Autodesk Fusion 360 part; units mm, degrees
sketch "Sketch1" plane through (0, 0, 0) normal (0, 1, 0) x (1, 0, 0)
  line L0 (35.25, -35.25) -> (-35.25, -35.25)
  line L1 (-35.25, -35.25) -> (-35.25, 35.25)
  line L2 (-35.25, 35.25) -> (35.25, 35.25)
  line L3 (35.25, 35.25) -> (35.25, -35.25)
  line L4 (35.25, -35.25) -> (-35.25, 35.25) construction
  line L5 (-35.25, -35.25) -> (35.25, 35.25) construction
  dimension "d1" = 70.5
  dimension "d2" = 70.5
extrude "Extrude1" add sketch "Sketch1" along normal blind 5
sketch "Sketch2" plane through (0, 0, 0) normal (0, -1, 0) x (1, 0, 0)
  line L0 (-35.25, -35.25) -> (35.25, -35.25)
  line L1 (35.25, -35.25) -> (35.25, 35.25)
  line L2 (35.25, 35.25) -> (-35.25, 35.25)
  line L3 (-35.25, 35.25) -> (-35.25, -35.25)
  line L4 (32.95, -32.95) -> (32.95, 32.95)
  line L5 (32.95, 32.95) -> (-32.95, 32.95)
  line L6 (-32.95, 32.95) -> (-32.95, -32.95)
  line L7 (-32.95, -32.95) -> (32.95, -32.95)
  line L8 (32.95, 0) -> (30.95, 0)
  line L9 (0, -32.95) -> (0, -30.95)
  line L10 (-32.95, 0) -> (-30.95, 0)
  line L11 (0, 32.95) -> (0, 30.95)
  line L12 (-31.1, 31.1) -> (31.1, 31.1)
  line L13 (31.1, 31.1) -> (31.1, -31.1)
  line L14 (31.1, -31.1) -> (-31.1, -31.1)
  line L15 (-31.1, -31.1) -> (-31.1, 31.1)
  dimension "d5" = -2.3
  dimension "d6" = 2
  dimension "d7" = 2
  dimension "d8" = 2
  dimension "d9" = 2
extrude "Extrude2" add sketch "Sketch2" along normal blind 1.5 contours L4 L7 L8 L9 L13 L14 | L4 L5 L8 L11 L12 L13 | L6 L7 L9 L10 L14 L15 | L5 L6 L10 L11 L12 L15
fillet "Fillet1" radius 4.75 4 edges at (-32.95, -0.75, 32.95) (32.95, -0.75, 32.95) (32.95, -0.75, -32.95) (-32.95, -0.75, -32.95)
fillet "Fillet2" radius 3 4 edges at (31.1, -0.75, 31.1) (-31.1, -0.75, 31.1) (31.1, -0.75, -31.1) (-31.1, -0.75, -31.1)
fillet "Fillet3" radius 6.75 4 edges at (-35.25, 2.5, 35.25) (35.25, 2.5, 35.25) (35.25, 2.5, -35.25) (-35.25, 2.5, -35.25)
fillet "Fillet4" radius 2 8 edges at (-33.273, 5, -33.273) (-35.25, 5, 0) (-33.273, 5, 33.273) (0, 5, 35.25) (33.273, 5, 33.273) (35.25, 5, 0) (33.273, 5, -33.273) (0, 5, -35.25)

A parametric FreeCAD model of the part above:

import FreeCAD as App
import Part
import Sketcher

V = App.Vector
Q = App.Units.Quantity


def edges_at(feature, points):
    """Names of the edges that pass closest to the given points."""
    edges = feature.Shape.Edges
    near = lambda p: min(range(len(edges)), key=lambda i: edges[i].distToShape(Part.Vertex(*p))[0])
    return sorted({f"Edge{near(p) + 1}" for p in points})


def add_polygon(sketch, points):
    """Adds a closed chain of lines whose ends are joined by coincident constraints."""
    first, n = sketch.GeometryCount, len(points)
    for a, b in zip(points, points[1:] + points[:1]):
        sketch.addGeometry(Part.LineSegment(App.Vector(*a, 0), App.Vector(*b, 0)), False)
    for i in range(n):
        sketch.addConstraint(Sketcher.Constraint("Coincident", first + i, 2, first + (i + 1) % n, 1))

doc = App.newDocument("Part")
body = doc.addObject("PartDesign::Body", "Body")

# Sketch on XZ plane
sketch1 = doc.addObject("Sketcher::SketchObject", "Sketch")
body.addObject(sketch1)
sketch1.AttachmentSupport = (doc.XZ_Plane, [""])
sketch1.MapMode = "FlatFace"
add_polygon(sketch1, [(-35.25, 35.25), (35.25, 35.25), (35.25, -35.25), (-35.25, -35.25)])  # lines 0-3
sketch1.addConstraint(Sketcher.Constraint("Horizontal", 0))
sketch1.addConstraint(Sketcher.Constraint("Vertical", 1))
sketch1.addConstraint(Sketcher.Constraint("Horizontal", 2))
sketch1.addConstraint(Sketcher.Constraint("Vertical", 3))
sketch1.addConstraint(Sketcher.Constraint("Symmetric", 0, 2, 2, 2, -1, 1))
sketch1.addConstraint(Sketcher.Constraint("Equal", 2, 1))
sketch1.addConstraint(Sketcher.Constraint("DistanceX", 0, 1, 0, 2, Q("70.5 mm")))
pad1 = doc.addObject("PartDesign::Pad", "Pad")
body.addObject(pad1)
pad1.Profile = sketch1
pad1.Length = 5
pad1.Reversed = True

# Sketch on XZ plane
sketch2 = doc.addObject("Sketcher::SketchObject", "Sketch001")
body.addObject(sketch2)
sketch2.AttachmentSupport = (doc.XZ_Plane, [""])
sketch2.MapMode = "FlatFace"
add_polygon(sketch2, [(32.95, -32.95), (32.95, 32.95), (-32.95, 32.95), (-32.95, -32.95)])  # lines 0-3
add_polygon(sketch2, [(31.1, -31.1), (-31.1, -31.1), (-31.1, 31.1), (31.1, 31.1)])  # lines 4-7
sketch2.addConstraint(Sketcher.Constraint("Vertical", 0))
sketch2.addConstraint(Sketcher.Constraint("Horizontal", 1))
sketch2.addConstraint(Sketcher.Constraint("Vertical", 2))
sketch2.addConstraint(Sketcher.Constraint("Horizontal", 3))
sketch2.addConstraint(Sketcher.Constraint("Horizontal", 4))
sketch2.addConstraint(Sketcher.Constraint("Vertical", 5))
sketch2.addConstraint(Sketcher.Constraint("Horizontal", 6))
sketch2.addConstraint(Sketcher.Constraint("Vertical", 7))
sketch2.addConstraint(Sketcher.Constraint("Symmetric", 0, 2, 2, 2, -1, 1))
sketch2.addConstraint(Sketcher.Constraint("Symmetric", 4, 2, 6, 2, -1, 1))
sketch2.addConstraint(Sketcher.Constraint("Equal", 3, 0))
sketch2.addConstraint(Sketcher.Constraint("Equal", 6, 5))
sketch2.addConstraint(Sketcher.Constraint("DistanceX", 1, 2, 1, 1, Q("65.9 mm")))
sketch2.addConstraint(Sketcher.Constraint("DistanceX", 4, 2, 4, 1, Q("62.2 mm")))
pad2 = doc.addObject("PartDesign::Pad", "Pad001")
body.addObject(pad2)
pad2.Profile = sketch2
pad2.Length = 1.5
doc.recompute()

fillet = doc.addObject("PartDesign::Fillet", "Fillet")
body.addObject(fillet)
fillet.Base = (pad2, edges_at(pad2, [
    (-32.95, -0.75, 32.95),
    (32.95, -0.75, 32.95),
    (32.95, -0.75, -32.95),
    (-32.95, -0.75, -32.95),
]))
fillet.Radius = 4.75
doc.recompute()

fillet2 = doc.addObject("PartDesign::Fillet", "Fillet001")
body.addObject(fillet2)
fillet2.Base = (fillet, edges_at(fillet, [
    (31.1, -0.75, 31.1),
    (-31.1, -0.75, 31.1),
    (31.1, -0.75, -31.1),
    (-31.1, -0.75, -31.1),
]))
fillet2.Radius = 3
doc.recompute()

fillet3 = doc.addObject("PartDesign::Fillet", "Fillet002")
body.addObject(fillet3)
fillet3.Base = (fillet2, edges_at(fillet2, [
    (-35.25, 2.5, 35.25),
    (35.25, 2.5, 35.25),
    (35.25, 2.5, -35.25),
    (-35.25, 2.5, -35.25),
]))
fillet3.Radius = 6.75
doc.recompute()

fillet4 = doc.addObject("PartDesign::Fillet", "Fillet003")
body.addObject(fillet4)
fillet4.Base = (fillet3, edges_at(fillet3, [
    (-33.273, 5, -33.273),
    (-35.25, 5, 0),
    (-33.273, 5, 33.273),
    (0, 5, 35.25),
    (33.273, 5, 33.273),
    (35.25, 5, 0),
    (33.273, 5, -33.273),
    (0, 5, -35.25),
]))
fillet4.Radius = 2

doc.recompute()
